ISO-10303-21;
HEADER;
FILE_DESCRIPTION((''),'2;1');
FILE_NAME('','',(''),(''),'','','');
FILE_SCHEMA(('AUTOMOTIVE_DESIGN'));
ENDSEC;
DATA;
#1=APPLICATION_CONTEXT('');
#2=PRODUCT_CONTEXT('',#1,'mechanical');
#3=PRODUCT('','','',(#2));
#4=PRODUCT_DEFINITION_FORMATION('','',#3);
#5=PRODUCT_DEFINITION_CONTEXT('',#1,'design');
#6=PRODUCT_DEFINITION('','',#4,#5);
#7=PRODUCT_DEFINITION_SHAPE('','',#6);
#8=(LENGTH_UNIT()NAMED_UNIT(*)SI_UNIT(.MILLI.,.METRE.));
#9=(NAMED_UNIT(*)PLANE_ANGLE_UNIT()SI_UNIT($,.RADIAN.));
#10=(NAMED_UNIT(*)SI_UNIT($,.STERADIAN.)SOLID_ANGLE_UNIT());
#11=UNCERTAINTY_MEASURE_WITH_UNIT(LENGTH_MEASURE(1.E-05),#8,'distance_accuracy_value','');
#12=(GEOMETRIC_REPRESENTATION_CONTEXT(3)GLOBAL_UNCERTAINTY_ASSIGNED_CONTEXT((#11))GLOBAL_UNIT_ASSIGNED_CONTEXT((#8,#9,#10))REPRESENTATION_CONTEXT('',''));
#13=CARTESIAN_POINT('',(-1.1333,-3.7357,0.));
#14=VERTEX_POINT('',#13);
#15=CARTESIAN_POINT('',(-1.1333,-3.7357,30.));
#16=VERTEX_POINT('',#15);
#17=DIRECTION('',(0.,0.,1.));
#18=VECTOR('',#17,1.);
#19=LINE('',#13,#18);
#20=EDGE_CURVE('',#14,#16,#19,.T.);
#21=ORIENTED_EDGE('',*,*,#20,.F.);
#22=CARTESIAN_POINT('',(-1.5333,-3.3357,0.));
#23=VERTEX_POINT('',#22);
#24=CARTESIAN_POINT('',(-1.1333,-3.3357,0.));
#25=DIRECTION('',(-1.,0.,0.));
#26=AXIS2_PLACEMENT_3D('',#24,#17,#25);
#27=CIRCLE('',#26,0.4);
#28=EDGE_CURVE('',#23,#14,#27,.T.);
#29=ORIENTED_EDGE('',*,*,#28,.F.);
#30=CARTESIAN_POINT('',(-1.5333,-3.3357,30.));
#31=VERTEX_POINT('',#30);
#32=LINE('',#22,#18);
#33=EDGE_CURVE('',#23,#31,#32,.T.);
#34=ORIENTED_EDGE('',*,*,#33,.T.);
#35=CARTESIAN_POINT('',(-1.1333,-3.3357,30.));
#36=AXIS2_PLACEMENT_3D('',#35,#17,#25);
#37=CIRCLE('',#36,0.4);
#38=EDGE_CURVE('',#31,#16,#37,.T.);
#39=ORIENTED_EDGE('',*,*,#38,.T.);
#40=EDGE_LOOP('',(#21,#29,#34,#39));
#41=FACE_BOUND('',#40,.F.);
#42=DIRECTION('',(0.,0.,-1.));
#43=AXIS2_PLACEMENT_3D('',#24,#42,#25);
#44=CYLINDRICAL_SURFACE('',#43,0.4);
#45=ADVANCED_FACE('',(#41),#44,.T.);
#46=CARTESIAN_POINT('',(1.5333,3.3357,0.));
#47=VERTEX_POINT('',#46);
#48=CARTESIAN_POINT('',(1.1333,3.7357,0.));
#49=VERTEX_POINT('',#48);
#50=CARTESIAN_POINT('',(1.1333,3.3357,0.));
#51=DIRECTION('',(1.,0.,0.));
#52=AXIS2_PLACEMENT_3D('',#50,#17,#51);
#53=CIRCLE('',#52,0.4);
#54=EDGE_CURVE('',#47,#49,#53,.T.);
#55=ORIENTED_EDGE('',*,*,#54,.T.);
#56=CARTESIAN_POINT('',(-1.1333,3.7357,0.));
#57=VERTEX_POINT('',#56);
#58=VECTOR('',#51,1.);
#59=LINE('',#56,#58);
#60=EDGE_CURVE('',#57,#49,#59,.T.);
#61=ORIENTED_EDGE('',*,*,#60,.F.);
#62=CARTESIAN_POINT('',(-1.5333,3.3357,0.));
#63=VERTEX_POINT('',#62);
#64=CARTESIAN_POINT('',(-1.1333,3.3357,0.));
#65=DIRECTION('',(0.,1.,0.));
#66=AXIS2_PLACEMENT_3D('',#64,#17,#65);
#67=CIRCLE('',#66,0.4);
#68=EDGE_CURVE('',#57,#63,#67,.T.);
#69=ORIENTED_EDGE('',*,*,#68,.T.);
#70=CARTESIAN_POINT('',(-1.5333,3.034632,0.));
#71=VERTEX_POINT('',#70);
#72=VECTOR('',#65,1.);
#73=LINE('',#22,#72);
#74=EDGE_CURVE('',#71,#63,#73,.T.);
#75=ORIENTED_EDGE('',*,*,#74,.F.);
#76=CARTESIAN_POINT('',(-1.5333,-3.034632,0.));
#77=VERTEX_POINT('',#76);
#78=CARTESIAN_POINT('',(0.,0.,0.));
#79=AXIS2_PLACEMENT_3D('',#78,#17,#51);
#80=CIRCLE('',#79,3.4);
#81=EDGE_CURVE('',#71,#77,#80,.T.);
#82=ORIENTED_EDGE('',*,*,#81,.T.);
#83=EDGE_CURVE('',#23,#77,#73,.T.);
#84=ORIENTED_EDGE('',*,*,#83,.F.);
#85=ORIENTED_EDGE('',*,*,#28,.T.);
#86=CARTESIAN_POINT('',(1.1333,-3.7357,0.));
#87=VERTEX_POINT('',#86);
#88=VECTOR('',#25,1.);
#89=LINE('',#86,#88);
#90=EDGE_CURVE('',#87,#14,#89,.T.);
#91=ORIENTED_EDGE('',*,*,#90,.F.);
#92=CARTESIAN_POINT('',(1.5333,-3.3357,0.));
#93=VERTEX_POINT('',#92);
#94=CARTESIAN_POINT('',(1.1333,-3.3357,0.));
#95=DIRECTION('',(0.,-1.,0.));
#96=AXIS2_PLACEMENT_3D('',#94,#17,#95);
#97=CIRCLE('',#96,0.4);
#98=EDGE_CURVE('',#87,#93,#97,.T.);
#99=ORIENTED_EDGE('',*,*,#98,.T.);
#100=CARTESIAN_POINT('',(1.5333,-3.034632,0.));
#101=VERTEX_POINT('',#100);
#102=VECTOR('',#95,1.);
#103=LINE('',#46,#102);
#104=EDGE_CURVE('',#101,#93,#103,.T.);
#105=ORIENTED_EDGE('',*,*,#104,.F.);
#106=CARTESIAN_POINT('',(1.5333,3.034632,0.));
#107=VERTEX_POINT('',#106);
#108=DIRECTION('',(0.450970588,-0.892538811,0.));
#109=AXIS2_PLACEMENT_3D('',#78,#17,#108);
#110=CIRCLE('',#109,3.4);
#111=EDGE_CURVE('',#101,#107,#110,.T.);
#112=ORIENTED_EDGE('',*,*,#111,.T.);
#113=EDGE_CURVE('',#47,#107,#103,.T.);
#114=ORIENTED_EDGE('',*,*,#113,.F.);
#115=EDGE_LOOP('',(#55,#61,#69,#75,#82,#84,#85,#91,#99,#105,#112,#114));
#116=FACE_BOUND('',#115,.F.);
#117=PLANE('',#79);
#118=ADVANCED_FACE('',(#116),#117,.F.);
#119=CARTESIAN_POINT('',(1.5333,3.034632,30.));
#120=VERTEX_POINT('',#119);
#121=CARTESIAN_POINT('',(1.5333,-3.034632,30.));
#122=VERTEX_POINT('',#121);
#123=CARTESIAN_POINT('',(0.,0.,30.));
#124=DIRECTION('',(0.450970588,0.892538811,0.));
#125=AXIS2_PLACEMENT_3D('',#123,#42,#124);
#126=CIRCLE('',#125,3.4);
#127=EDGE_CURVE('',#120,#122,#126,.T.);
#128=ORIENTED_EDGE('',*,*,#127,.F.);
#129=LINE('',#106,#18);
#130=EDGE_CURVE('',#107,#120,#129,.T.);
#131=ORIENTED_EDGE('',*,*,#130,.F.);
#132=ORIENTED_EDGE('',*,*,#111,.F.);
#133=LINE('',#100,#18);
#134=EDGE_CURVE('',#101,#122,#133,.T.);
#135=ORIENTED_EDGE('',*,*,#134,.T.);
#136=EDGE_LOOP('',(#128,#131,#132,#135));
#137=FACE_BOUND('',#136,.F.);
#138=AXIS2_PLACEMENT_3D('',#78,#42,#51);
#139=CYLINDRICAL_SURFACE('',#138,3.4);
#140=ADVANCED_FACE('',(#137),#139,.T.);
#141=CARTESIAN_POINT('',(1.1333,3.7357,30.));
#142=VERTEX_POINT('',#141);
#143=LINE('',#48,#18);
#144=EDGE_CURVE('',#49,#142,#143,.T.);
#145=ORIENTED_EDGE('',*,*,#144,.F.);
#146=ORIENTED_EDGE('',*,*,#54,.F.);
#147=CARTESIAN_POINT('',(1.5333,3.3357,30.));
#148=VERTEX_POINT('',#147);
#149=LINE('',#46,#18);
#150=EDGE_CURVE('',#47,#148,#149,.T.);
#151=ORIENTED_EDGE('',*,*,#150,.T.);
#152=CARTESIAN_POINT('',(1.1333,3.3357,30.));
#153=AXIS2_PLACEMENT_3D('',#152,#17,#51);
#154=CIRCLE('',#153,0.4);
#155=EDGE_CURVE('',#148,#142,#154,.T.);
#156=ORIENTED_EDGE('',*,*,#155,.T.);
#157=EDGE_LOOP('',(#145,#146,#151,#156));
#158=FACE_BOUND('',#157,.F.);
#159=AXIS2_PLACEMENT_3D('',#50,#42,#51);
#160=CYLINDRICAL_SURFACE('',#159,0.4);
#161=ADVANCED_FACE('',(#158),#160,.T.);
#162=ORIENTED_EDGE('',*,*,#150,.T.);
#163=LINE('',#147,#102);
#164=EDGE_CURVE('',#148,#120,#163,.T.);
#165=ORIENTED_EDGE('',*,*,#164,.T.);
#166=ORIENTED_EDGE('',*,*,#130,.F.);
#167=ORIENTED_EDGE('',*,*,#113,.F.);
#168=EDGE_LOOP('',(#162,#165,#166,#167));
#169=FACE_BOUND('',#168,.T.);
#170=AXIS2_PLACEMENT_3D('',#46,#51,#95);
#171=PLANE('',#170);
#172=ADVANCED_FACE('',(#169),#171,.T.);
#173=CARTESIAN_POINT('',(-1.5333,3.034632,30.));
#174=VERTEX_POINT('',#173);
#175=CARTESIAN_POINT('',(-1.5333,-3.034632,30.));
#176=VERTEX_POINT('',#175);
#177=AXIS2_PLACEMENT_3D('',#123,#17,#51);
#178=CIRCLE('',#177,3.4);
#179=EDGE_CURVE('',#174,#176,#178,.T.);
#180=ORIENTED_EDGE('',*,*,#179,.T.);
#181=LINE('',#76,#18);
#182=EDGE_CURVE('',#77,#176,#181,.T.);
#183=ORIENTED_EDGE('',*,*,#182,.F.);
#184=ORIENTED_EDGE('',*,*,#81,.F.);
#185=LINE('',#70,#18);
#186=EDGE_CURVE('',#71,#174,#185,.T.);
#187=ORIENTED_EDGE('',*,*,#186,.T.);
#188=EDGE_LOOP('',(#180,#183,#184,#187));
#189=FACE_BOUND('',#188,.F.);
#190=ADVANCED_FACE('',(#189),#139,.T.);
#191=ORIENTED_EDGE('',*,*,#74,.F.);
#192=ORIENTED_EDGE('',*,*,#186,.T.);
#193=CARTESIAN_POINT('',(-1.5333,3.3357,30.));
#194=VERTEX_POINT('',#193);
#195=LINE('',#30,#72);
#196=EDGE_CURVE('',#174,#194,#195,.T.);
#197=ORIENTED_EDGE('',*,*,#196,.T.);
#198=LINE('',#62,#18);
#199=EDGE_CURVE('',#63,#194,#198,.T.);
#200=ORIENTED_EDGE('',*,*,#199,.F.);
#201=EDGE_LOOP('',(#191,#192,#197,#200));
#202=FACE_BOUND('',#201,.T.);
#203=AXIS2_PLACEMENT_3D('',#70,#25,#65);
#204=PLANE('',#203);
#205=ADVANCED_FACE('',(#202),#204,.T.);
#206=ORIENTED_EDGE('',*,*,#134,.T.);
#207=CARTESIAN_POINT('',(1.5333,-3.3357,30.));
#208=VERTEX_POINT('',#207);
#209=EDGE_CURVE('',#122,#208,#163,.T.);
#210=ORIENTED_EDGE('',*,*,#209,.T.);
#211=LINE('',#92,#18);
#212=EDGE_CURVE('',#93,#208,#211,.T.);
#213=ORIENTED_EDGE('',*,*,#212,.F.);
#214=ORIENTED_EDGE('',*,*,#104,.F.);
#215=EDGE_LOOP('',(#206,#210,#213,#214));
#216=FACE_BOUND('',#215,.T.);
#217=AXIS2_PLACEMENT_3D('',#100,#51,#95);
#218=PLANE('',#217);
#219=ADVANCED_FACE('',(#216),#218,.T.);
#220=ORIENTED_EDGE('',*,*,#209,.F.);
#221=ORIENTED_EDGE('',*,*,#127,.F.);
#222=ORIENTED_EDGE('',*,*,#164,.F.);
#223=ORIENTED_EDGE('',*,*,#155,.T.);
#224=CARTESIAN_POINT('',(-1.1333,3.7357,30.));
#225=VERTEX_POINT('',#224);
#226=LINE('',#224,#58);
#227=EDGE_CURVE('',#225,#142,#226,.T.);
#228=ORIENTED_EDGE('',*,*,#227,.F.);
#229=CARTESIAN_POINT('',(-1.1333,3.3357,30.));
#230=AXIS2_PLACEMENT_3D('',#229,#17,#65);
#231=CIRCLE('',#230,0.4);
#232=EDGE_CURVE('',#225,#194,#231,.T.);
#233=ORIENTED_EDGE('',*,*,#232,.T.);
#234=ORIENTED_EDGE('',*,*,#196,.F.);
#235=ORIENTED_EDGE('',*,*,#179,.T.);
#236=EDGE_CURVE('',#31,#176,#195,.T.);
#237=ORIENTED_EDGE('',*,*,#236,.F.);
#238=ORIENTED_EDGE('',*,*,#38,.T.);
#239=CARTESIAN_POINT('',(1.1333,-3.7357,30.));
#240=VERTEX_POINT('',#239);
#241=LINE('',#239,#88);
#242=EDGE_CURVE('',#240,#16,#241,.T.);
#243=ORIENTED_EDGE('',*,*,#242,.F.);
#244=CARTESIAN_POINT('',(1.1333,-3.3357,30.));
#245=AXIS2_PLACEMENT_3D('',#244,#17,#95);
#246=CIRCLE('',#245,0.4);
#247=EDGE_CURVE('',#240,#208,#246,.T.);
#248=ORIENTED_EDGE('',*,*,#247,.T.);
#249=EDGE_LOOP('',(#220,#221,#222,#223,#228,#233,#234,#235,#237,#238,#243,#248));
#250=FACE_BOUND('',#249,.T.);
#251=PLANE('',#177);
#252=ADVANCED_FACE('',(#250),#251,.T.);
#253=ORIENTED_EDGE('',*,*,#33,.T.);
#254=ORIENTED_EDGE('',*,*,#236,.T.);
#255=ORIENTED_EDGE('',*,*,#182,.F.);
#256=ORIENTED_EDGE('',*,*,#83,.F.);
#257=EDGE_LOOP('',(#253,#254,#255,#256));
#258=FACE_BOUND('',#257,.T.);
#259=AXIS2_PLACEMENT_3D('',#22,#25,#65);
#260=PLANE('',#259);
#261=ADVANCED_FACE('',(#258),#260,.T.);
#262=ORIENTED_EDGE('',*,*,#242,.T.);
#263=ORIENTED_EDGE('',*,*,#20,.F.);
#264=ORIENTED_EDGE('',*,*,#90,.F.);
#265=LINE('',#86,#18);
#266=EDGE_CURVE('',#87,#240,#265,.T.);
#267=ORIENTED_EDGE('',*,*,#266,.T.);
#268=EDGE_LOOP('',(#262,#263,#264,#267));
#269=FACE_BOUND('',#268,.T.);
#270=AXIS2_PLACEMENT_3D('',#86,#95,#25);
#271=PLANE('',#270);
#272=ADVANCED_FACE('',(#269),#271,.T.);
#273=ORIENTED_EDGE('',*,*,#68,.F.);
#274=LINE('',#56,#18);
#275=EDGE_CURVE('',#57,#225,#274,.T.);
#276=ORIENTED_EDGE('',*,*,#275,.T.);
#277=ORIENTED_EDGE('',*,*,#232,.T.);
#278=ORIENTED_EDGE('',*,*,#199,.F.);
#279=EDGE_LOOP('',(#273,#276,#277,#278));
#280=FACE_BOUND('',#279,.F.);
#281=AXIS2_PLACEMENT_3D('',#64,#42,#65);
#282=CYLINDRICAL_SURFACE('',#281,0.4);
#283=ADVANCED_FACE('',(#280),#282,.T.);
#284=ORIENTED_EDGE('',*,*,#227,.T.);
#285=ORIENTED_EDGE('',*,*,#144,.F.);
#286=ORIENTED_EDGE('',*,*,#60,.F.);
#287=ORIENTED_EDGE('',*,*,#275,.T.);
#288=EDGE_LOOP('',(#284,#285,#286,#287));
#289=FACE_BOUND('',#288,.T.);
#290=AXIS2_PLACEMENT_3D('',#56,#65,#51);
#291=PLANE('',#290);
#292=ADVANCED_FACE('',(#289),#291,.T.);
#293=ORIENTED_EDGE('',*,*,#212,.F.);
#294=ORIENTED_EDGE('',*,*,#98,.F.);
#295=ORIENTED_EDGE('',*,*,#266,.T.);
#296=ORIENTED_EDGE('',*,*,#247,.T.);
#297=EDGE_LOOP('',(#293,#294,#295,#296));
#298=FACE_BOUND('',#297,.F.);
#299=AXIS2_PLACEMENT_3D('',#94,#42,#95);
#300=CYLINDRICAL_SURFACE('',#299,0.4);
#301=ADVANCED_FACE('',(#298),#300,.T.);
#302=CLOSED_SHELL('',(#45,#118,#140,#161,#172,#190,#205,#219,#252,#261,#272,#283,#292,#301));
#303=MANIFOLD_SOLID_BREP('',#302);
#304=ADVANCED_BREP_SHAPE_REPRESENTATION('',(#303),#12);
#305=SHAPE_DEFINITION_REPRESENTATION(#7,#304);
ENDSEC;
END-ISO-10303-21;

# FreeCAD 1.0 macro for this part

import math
import FreeCAD as App
import Part
import Sketcher
Q = App.Units.Quantity

doc = App.newDocument("Part")
body = doc.addObject("PartDesign::Body", "Body")

# Sketch on XY plane
sketch1 = doc.addObject("Sketcher::SketchObject", "Sketch")
body.addObject(sketch1)
sketch1.AttachmentSupport = (doc.XY_Plane, [""])
sketch1.MapMode = "FlatFace"
sketch1.addGeometry(Part.ArcOfCircle(Part.Circle(App.Vector(0, 0, 0), App.Vector(0, 0, 1), 3.4), math.radians(-63), math.radians(63)), False)
sketch1.addGeometry(Part.LineSegment(App.Vector(1.53, 3.03, 0), App.Vector(1.53, 3.34, 0)), False)
sketch1.addGeometry(Part.ArcOfCircle(Part.Circle(App.Vector(1.13, 3.34, 0), App.Vector(0, 0, 1), 0.4), math.radians(0), math.radians(90)), False)
sketch1.addGeometry(Part.LineSegment(App.Vector(1.13, 3.74, 0), App.Vector(-1.13, 3.74, 0)), False)
sketch1.addGeometry(Part.ArcOfCircle(Part.Circle(App.Vector(-1.13, 3.34, 0), App.Vector(0, 0, 1), 0.4), math.radians(90), math.radians(180)), False)
sketch1.addGeometry(Part.LineSegment(App.Vector(-1.53, 3.34, 0), App.Vector(-1.53, 3.03, 0)), False)
sketch1.addGeometry(Part.ArcOfCircle(Part.Circle(App.Vector(0, 0, 0), App.Vector(0, 0, 1), 3.4), math.radians(117), math.radians(243)), False)
sketch1.addGeometry(Part.LineSegment(App.Vector(-1.53, -3.03, 0), App.Vector(-1.53, -3.34, 0)), False)
sketch1.addGeometry(Part.ArcOfCircle(Part.Circle(App.Vector(-1.13, -3.34, 0), App.Vector(0, 0, 1), 0.4), math.radians(180), math.radians(270)), False)
sketch1.addGeometry(Part.LineSegment(App.Vector(-1.13, -3.74, 0), App.Vector(1.13, -3.74, 0)), False)
sketch1.addGeometry(Part.ArcOfCircle(Part.Circle(App.Vector(1.13, -3.34, 0), App.Vector(0, 0, 1), 0.4), math.radians(-90), math.radians(0)), False)
sketch1.addGeometry(Part.LineSegment(App.Vector(1.53, -3.34, 0), App.Vector(1.53, -3.03, 0)), False)
sketch1.addConstraint(Sketcher.Constraint("Coincident", 0, 2, 1, 1))
sketch1.addConstraint(Sketcher.Constraint("Tangent", 1, 2, 2, 1))
sketch1.addConstraint(Sketcher.Constraint("Tangent", 2, 2, 3, 1))
sketch1.addConstraint(Sketcher.Constraint("Tangent", 3, 2, 4, 1))
sketch1.addConstraint(Sketcher.Constraint("Tangent", 4, 2, 5, 1))
sketch1.addConstraint(Sketcher.Constraint("Coincident", 5, 2, 6, 1))
sketch1.addConstraint(Sketcher.Constraint("Coincident", 6, 2, 7, 1))
sketch1.addConstraint(Sketcher.Constraint("Tangent", 7, 2, 8, 1))
sketch1.addConstraint(Sketcher.Constraint("Tangent", 8, 2, 9, 1))
sketch1.addConstraint(Sketcher.Constraint("Tangent", 9, 2, 10, 1))
sketch1.addConstraint(Sketcher.Constraint("Tangent", 10, 2, 11, 1))
sketch1.addConstraint(Sketcher.Constraint("Coincident", 11, 2, 0, 1))
sketch1.addConstraint(Sketcher.Constraint("Vertical", 1))
sketch1.addConstraint(Sketcher.Constraint("Horizontal", 3))
sketch1.addConstraint(Sketcher.Constraint("Vertical", 5))
sketch1.addConstraint(Sketcher.Constraint("Vertical", 7))
sketch1.addConstraint(Sketcher.Constraint("Horizontal", 9))
sketch1.addConstraint(Sketcher.Constraint("Vertical", 11))
sketch1.addConstraint(Sketcher.Constraint("Coincident", 0, 3, -1, 1))
sketch1.addConstraint(Sketcher.Constraint("Coincident", 6, 3, -1, 1))
sketch1.addConstraint(Sketcher.Constraint("Equal", 2, 4))
sketch1.addConstraint(Sketcher.Constraint("Equal", 0, 6))
sketch1.addConstraint(Sketcher.Constraint("Equal", 4, 8))
sketch1.addConstraint(Sketcher.Constraint("Equal", 8, 10))
sketch1.addConstraint(Sketcher.Constraint("Symmetric", 2, 3, 8, 3, -1, 1))
sketch1.addConstraint(Sketcher.Constraint("Horizontal", 0, 2, 5, 2))
sketch1.addConstraint(Sketcher.Constraint("Horizontal", 6, 2, 11, 2))
sketch1.addConstraint(Sketcher.Constraint("Radius", 0, Q("3.4 mm")))
sketch1.addConstraint(Sketcher.Constraint("Radius", 2, Q("0.4 mm")))
sketch1.addConstraint(Sketcher.Constraint("DistanceX", 4, 2, 1, 2, Q("3.0666 mm")))
sketch1.addConstraint(Sketcher.Constraint("DistanceY", 1, 1, 1, 2, Q("0.301 mm")))
pad1 = doc.addObject("PartDesign::Pad", "Pad")
body.addObject(pad1)
pad1.Profile = sketch1
pad1.Length = 30

doc.recompute()
